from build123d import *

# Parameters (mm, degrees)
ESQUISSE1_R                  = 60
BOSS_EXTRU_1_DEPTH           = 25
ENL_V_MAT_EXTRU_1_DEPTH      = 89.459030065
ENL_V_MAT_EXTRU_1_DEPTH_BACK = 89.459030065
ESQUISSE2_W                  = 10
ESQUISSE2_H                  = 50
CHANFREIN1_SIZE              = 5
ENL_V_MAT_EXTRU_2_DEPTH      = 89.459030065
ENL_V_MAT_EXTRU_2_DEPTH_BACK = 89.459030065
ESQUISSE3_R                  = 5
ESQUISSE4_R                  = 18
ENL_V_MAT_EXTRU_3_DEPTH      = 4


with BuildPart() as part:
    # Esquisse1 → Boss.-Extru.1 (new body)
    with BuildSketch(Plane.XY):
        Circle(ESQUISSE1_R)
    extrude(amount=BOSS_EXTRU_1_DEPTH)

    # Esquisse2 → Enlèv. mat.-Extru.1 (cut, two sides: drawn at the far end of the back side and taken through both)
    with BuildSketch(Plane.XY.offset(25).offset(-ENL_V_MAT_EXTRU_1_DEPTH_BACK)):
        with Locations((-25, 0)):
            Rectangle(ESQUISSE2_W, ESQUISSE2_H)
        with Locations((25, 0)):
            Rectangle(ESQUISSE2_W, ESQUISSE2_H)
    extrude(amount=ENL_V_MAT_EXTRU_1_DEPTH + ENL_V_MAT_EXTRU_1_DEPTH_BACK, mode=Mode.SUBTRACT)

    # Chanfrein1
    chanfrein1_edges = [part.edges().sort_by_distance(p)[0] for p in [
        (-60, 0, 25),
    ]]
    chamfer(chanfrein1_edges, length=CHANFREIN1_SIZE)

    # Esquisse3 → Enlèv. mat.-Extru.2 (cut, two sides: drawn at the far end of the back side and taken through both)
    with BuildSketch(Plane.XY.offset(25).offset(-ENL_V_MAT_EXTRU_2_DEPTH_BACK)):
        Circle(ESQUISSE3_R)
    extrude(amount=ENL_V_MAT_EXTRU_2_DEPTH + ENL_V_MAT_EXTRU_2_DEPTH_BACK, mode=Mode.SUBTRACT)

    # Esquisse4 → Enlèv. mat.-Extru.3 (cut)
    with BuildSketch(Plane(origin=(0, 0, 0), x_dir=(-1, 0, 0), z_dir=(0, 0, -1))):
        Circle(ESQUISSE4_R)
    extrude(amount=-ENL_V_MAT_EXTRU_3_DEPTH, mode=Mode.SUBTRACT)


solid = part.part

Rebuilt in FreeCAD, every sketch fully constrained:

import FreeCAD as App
import Part
import Sketcher
Q = App.Units.Quantity


def edges_at(feature, points):
    """Names of the edges that pass closest to the given points."""
    edges = feature.Shape.Edges
    near = lambda p: min(range(len(edges)), key=lambda i: edges[i].distToShape(Part.Vertex(*p))[0])
    return sorted({f"Edge{near(p) + 1}" for p in points})

doc = App.newDocument("Part")
params = doc.addObject("Spreadsheet::Sheet", "Params")
for row, (alias, value) in enumerate([
    ("sketch1_diameter", "120 mm"),
    ("pad1_length", "25 mm"),
    ("sketch2_width", "10 mm"),
    ("sketch2_height", "50 mm"),
    ("chamfer_size", "5 mm"),
    ("sketch3_diameter", "10 mm"),
    ("sketch4_diameter", "36 mm"),
    ("pocket3_length", "4 mm"),
], start=1):
    params.set(f"A{row}", alias)
    params.set(f"B{row}", "=" + value)
    params.setAlias(f"B{row}", alias)

body = doc.addObject("PartDesign::Body", "Body")

# Sketch on XY plane
sketch1 = body.newObject("Sketcher::SketchObject", "Sketch")
sketch1.AttachmentSupport = (doc.getObject("XY_Plane"), [""])
sketch1.MapMode = "FlatFace"
sketch1.addGeometry(Part.Circle(App.Vector(0, 0, 0), App.Vector(0, 0, 1), 60), False)
sketch1.addConstraint([
    Sketcher.Constraint("Coincident", 0, 3, -1, 1),
    Sketcher.Constraint("Diameter", 0, Q("120 mm")),
])
sketch1.setExpression("Constraints[1]", "Params.sketch1_diameter")
pad1 = body.newObject("PartDesign::Pad", "Pad")
pad1.Profile = sketch1
pad1.setExpression("Length", "Params.pad1_length")

# Sketch on XY plane
sketch2 = body.newObject("Sketcher::SketchObject", "Sketch001")
sketch2.AttachmentSupport = (doc.getObject("XY_Plane"), [""])
sketch2.MapMode = "FlatFace"
sketch2.AttachmentOffset = App.Placement(App.Vector(0, 0, 25), App.Rotation())
sketch2.addGeometry([
    Part.LineSegment(App.Vector(-30, 25, 0), App.Vector(-30, -25, 0)),  # 0
    Part.LineSegment(App.Vector(-30, -25, 0), App.Vector(-20, -25, 0)),  # 1
    Part.LineSegment(App.Vector(-20, -25, 0), App.Vector(-20, 25, 0)),  # 2
    Part.LineSegment(App.Vector(-20, 25, 0), App.Vector(-30, 25, 0)),  # 3
    Part.LineSegment(App.Vector(20, 25, 0), App.Vector(20, -25, 0)),  # 4
    Part.LineSegment(App.Vector(20, -25, 0), App.Vector(30, -25, 0)),  # 5
    Part.LineSegment(App.Vector(30, -25, 0), App.Vector(30, 25, 0)),  # 6
    Part.LineSegment(App.Vector(30, 25, 0), App.Vector(20, 25, 0)),  # 7
], False)
sketch2.addConstraint([
    Sketcher.Constraint("Coincident", 0, 2, 1, 1),
    Sketcher.Constraint("Coincident", 1, 2, 2, 1),
    Sketcher.Constraint("Coincident", 2, 2, 3, 1),
    Sketcher.Constraint("Coincident", 3, 2, 0, 1),
    Sketcher.Constraint("Coincident", 4, 2, 5, 1),
    Sketcher.Constraint("Coincident", 5, 2, 6, 1),
    Sketcher.Constraint("Coincident", 6, 2, 7, 1),
    Sketcher.Constraint("Coincident", 7, 2, 4, 1),
    Sketcher.Constraint("Vertical", 0),
    Sketcher.Constraint("Horizontal", 1),
    Sketcher.Constraint("Vertical", 2),
    Sketcher.Constraint("Horizontal", 3),
    Sketcher.Constraint("Vertical", 4),
    Sketcher.Constraint("Horizontal", 5),
    Sketcher.Constraint("Vertical", 6),
    Sketcher.Constraint("Horizontal", 7),
    Sketcher.Constraint("Symmetric", 2, 2, 4, 2, -1, 1),
    Sketcher.Constraint("Symmetric", 0, 2, 6, 2, -1, 1),
    Sketcher.Constraint("Horizontal", 1, 2, 4, 2),
    Sketcher.Constraint("DistanceX", 1, 1, 1, 2, Q("10 mm")),
    Sketcher.Constraint("DistanceY", 0, 2, 0, 1, Q("50 mm")),
    Sketcher.Constraint("DistanceX", 0, 2, -1, 1, Q("30 mm")),
])
sketch2.setExpression("Constraints[19]", "Params.sketch2_width")
sketch2.setExpression("Constraints[20]", "Params.sketch2_height")
pocket1 = body.newObject("PartDesign::Pocket", "Pocket")
pocket1.Profile = sketch2
pocket1.Type = "ThroughAll"
pocket1.Midplane = True
doc.recompute()

chamfer = body.newObject("PartDesign::Chamfer", "Chamfer")
chamfer.Base = (pocket1, edges_at(pocket1, [(-60, 0, 25)]))
chamfer.setExpression("Size", "Params.chamfer_size")

# Sketch on XY plane
sketch3 = body.newObject("Sketcher::SketchObject", "Sketch002")
sketch3.AttachmentSupport = (doc.getObject("XY_Plane"), [""])
sketch3.MapMode = "FlatFace"
sketch3.AttachmentOffset = App.Placement(App.Vector(0, 0, 25), App.Rotation())
sketch3.addGeometry(Part.Circle(App.Vector(0, 0, 0), App.Vector(0, 0, 1), 5), False)
sketch3.addConstraint([
    Sketcher.Constraint("Coincident", 0, 3, -1, 1),
    Sketcher.Constraint("Diameter", 0, Q("10 mm")),
])
sketch3.setExpression("Constraints[1]", "Params.sketch3_diameter")
pocket2 = body.newObject("PartDesign::Pocket", "Pocket001")
pocket2.Profile = sketch3
pocket2.Type = "ThroughAll"
pocket2.Midplane = True

# Sketch on XY plane
sketch4 = body.newObject("Sketcher::SketchObject", "Sketch003")
sketch4.AttachmentSupport = (doc.getObject("XY_Plane"), [""])
sketch4.MapMode = "FlatFace"
sketch4.addGeometry(Part.Circle(App.Vector(0, 0, 0), App.Vector(0, 0, 1), 18), False)
sketch4.addConstraint([
    Sketcher.Constraint("Coincident", 0, 3, -1, 1),
    Sketcher.Constraint("Diameter", 0, Q("36 mm")),
])
sketch4.setExpression("Constraints[1]", "Params.sketch4_diameter")
pocket3 = body.newObject("PartDesign::Pocket", "Pocket002")
pocket3.Profile = sketch4
pocket3.setExpression("Length", "Params.pocket3_length")
pocket3.Reversed = True

doc.recompute()
